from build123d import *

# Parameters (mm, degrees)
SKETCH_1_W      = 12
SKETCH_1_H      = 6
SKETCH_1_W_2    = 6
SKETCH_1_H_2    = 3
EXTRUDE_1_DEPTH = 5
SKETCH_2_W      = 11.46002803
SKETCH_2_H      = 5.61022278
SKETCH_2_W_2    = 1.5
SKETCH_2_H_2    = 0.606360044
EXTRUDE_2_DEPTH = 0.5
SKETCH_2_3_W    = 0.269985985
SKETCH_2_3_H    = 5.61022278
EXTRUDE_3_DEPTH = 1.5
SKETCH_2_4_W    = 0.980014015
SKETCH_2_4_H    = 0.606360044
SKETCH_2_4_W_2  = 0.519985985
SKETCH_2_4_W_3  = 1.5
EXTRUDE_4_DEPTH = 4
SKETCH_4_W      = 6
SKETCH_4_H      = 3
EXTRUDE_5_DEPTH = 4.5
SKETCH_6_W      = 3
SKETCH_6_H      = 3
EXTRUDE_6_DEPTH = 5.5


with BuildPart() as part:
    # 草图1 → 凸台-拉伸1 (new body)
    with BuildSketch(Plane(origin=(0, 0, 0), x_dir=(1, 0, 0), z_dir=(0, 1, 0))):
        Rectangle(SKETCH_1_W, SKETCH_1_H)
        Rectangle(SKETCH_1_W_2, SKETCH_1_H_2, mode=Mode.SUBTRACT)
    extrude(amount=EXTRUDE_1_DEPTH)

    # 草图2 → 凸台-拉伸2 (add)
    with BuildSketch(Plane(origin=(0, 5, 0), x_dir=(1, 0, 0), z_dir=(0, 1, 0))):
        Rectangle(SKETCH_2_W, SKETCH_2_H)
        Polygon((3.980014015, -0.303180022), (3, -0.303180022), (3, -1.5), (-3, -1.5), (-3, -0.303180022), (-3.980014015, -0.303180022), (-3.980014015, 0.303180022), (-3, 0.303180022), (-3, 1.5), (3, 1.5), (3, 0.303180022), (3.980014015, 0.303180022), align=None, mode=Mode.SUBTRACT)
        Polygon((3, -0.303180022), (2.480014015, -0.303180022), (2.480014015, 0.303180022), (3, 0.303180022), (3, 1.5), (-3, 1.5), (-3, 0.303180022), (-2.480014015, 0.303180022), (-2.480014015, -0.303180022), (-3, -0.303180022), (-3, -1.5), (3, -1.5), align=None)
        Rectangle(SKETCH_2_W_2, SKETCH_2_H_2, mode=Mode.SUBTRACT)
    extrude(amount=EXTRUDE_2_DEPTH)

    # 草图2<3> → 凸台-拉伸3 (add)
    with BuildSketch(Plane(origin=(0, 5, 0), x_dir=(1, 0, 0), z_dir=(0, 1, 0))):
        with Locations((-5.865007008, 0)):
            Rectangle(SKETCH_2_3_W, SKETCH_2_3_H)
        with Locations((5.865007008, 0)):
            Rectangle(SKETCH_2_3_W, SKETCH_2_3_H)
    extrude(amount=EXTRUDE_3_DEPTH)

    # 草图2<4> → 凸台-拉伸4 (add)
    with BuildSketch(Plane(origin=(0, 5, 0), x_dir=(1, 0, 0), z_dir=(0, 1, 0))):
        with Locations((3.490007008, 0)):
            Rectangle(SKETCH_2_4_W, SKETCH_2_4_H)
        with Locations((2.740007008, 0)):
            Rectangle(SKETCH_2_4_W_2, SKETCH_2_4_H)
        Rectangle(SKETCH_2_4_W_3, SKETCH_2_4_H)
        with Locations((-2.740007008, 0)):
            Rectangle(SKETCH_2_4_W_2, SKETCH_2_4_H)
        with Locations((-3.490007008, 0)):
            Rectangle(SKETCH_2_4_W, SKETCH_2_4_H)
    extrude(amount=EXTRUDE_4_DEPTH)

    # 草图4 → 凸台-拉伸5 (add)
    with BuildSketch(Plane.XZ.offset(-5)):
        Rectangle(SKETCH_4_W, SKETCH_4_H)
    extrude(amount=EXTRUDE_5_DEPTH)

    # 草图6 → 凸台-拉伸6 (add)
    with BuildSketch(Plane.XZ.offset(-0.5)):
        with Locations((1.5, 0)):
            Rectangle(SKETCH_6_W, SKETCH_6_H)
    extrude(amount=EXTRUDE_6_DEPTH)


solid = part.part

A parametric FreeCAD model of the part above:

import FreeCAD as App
import Part
import Sketcher

V = App.Vector
Q = App.Units.Quantity

doc = App.newDocument("Part")
body = doc.addObject("PartDesign::Body", "Body")

sketch1 = doc.addObject("Sketcher::SketchObject", "Sketch")
body.addObject(sketch1)
sketch1.AttachmentSupport = (doc.XZ_Plane, [""])
sketch1.MapMode = "FlatFace"
sketch1.addGeometry([
    Part.LineSegment(V(-6, -3, 0), V(-6, 3, 0)),
    Part.LineSegment(V(-6, 3, 0), V(6, 3, 0)),
    Part.LineSegment(V(6, 3, 0), V(6, -3, 0)),
    Part.LineSegment(V(6, -3, 0), V(-6, -3, 0)),
    Part.LineSegment(V(3, 1.5, 0), V(-3, 1.5, 0)),
    Part.LineSegment(V(-3, 1.5, 0), V(-3, -1.5, 0)),
    Part.LineSegment(V(-3, -1.5, 0), V(3, -1.5, 0)),
    Part.LineSegment(V(3, -1.5, 0), V(3, 1.5, 0)),
], False)
sketch1.addConstraint([
    Sketcher.Constraint("Coincident", 0, 2, 1, 1),
    Sketcher.Constraint("Coincident", 1, 2, 2, 1),
    Sketcher.Constraint("Coincident", 2, 2, 3, 1),
    Sketcher.Constraint("Coincident", 3, 2, 0, 1),
    Sketcher.Constraint("Coincident", 4, 2, 5, 1),
    Sketcher.Constraint("Coincident", 5, 2, 6, 1),
    Sketcher.Constraint("Coincident", 6, 2, 7, 1),
    Sketcher.Constraint("Coincident", 7, 2, 4, 1),
    Sketcher.Constraint("Vertical", 0),
    Sketcher.Constraint("Horizontal", 1),
    Sketcher.Constraint("Vertical", 2),
    Sketcher.Constraint("Horizontal", 3),
    Sketcher.Constraint("Horizontal", 4),
    Sketcher.Constraint("Vertical", 5),
    Sketcher.Constraint("Horizontal", 6),
    Sketcher.Constraint("Vertical", 7),
    Sketcher.Constraint("Symmetric", 0, 2, 2, 2, -1, 1),
    Sketcher.Constraint("Symmetric", 4, 2, 6, 2, -1, 1),
    Sketcher.Constraint("Equal", 6, 0),
    Sketcher.Constraint("DistanceX", 1, 1, 1, 2, Q("12 mm")),
    Sketcher.Constraint("DistanceX", 4, 2, 4, 1, Q("6 mm")),
    Sketcher.Constraint("DistanceY", 5, 2, 5, 1, Q("3 mm")),
])
pad1 = doc.addObject("PartDesign::Pad", "Pad")
body.addObject(pad1)
pad1.Profile = sketch1
pad1.Length = 5
pad1.Reversed = True

sketch2 = doc.addObject("Sketcher::SketchObject", "Sketch001")
body.addObject(sketch2)
sketch2.AttachmentSupport = (doc.XZ_Plane, [""])
sketch2.MapMode = "FlatFace"
sketch2.AttachmentOffset = App.Placement(V(0, 0, -5), App.Rotation())
sketch2.addGeometry([
    Part.LineSegment(V(-5.7, -2.8, 0), V(-5.7, 2.8, 0)),
    Part.LineSegment(V(-5.7, 2.8, 0), V(5.7, 2.8, 0)),
    Part.LineSegment(V(5.7, 2.8, 0), V(5.7, -2.8, 0)),
    Part.LineSegment(V(5.7, -2.8, 0), V(-5.7, -2.8, 0)),
    Part.LineSegment(V(-4, -0.3, 0), V(-2.5, -0.3, 0)),
    Part.LineSegment(V(-2.5, -0.3, 0), V(-2.5, 0.3, 0)),
    Part.LineSegment(V(-2.5, 0.3, 0), V(-4, 0.3, 0)),
    Part.LineSegment(V(-4, 0.3, 0), V(-4, -0.3, 0)),
    Part.LineSegment(V(0.8, 0.3, 0), V(-0.8, 0.3, 0)),
    Part.LineSegment(V(-0.8, 0.3, 0), V(-0.8, -0.3, 0)),
    Part.LineSegment(V(-0.8, -0.3, 0), V(0.8, -0.3, 0)),
    Part.LineSegment(V(0.8, -0.3, 0), V(0.8, 0.3, 0)),
    Part.LineSegment(V(4, -0.3, 0), V(4, 0.3, 0)),
    Part.LineSegment(V(4, 0.3, 0), V(2.5, 0.3, 0)),
    Part.LineSegment(V(2.5, 0.3, 0), V(2.5, -0.3, 0)),
    Part.LineSegment(V(2.5, -0.3, 0), V(4, -0.3, 0)),
], False)
sketch2.addConstraint([
    Sketcher.Constraint("Coincident", 0, 2, 1, 1),
    Sketcher.Constraint("Coincident", 1, 2, 2, 1),
    Sketcher.Constraint("Coincident", 2, 2, 3, 1),
    Sketcher.Constraint("Coincident", 3, 2, 0, 1),
    Sketcher.Constraint("Coincident", 4, 2, 5, 1),
    Sketcher.Constraint("Coincident", 5, 2, 6, 1),
    Sketcher.Constraint("Coincident", 6, 2, 7, 1),
    Sketcher.Constraint("Coincident", 7, 2, 4, 1),
    Sketcher.Constraint("Coincident", 8, 2, 9, 1),
    Sketcher.Constraint("Coincident", 9, 2, 10, 1),
    Sketcher.Constraint("Coincident", 10, 2, 11, 1),
    Sketcher.Constraint("Coincident", 11, 2, 8, 1),
    Sketcher.Constraint("Coincident", 12, 2, 13, 1),
    Sketcher.Constraint("Coincident", 13, 2, 14, 1),
    Sketcher.Constraint("Coincident", 14, 2, 15, 1),
    Sketcher.Constraint("Coincident", 15, 2, 12, 1),
    Sketcher.Constraint("Vertical", 0),
    Sketcher.Constraint("Horizontal", 1),
    Sketcher.Constraint("Vertical", 2),
    Sketcher.Constraint("Horizontal", 3),
    Sketcher.Constraint("Horizontal", 4),
    Sketcher.Constraint("Vertical", 5),
    Sketcher.Constraint("Horizontal", 6),
    Sketcher.Constraint("Vertical", 7),
    Sketcher.Constraint("Horizontal", 8),
    Sketcher.Constraint("Vertical", 9),
    Sketcher.Constraint("Horizontal", 10),
    Sketcher.Constraint("Vertical", 11),
    Sketcher.Constraint("Vertical", 12),
    Sketcher.Constraint("Horizontal", 13),
    Sketcher.Constraint("Vertical", 14),
    Sketcher.Constraint("Horizontal", 15),
    Sketcher.Constraint("Symmetric", 0, 2, 2, 2, -1, 1),
    Sketcher.Constraint("Symmetric", 8, 2, 10, 2, -1, 1),
    Sketcher.Constraint("Symmetric", 7, 2, 12, 2, -1, 1),
    Sketcher.Constraint("Symmetric", 5, 2, 14, 2, -1, 1),
    Sketcher.Constraint("Horizontal", 6, 2, 8, 2),
    Sketcher.Constraint("Horizontal", 7, 2, 9, 2),
    Sketcher.Constraint("Equal", 6, 8),
    Sketcher.Constraint("DistanceX", 4, 1, 4, 2, Q("1.5 mm")),
    Sketcher.Constraint("DistanceX", 3, 2, 4, 2, Q("3.25 mm")),
    Sketcher.Constraint("DistanceX", 1, 1, 1, 2, Q("11.460028 mm")),
    Sketcher.Constraint("DistanceY", 5, 1, 5, 2, Q("0.60636 mm")),
    Sketcher.Constraint("DistanceY", 0, 1, 0, 2, Q("5.610223 mm")),
])
pad2 = doc.addObject("PartDesign::Pad", "Pad001")
body.addObject(pad2)
pad2.Profile = sketch2
pad2.Length = 0.5
pad2.Reversed = True

sketch3 = doc.addObject("Sketcher::SketchObject", "Sketch002")
body.addObject(sketch3)
sketch3.AttachmentSupport = (doc.XZ_Plane, [""])
sketch3.MapMode = "FlatFace"
sketch3.AttachmentOffset = App.Placement(V(0, 0, -5), App.Rotation())
sketch3.addGeometry([
    Part.LineSegment(V(-6, -2.81, 0), V(-6, 2.81, 0)),
    Part.LineSegment(V(-6, 2.81, 0), V(-5.73, 2.81, 0)),
    Part.LineSegment(V(-5.73, 2.81, 0), V(-5.73, -2.81, 0)),
    Part.LineSegment(V(-5.73, -2.81, 0), V(-6, -2.81, 0)),
    Part.LineSegment(V(5.73, -2.81, 0), V(5.73, 2.81, 0)),
    Part.LineSegment(V(5.73, 2.81, 0), V(6, 2.81, 0)),
    Part.LineSegment(V(6, 2.81, 0), V(6, -2.81, 0)),
    Part.LineSegment(V(6, -2.81, 0), V(5.73, -2.81, 0)),
], False)
sketch3.addConstraint([
    Sketcher.Constraint("Coincident", 0, 2, 1, 1),
    Sketcher.Constraint("Coincident", 1, 2, 2, 1),
    Sketcher.Constraint("Coincident", 2, 2, 3, 1),
    Sketcher.Constraint("Coincident", 3, 2, 0, 1),
    Sketcher.Constraint("Coincident", 4, 2, 5, 1),
    Sketcher.Constraint("Coincident", 5, 2, 6, 1),
    Sketcher.Constraint("Coincident", 6, 2, 7, 1),
    Sketcher.Constraint("Coincident", 7, 2, 4, 1),
    Sketcher.Constraint("Vertical", 0),
    Sketcher.Constraint("Horizontal", 1),
    Sketcher.Constraint("Vertical", 2),
    Sketcher.Constraint("Horizontal", 3),
    Sketcher.Constraint("Vertical", 4),
    Sketcher.Constraint("Horizontal", 5),
    Sketcher.Constraint("Vertical", 6),
    Sketcher.Constraint("Horizontal", 7),
    Sketcher.Constraint("Symmetric", 2, 2, 4, 2, -1, 1),
    Sketcher.Constraint("Symmetric", 0, 2, 6, 2, -1, 1),
    Sketcher.Constraint("Horizontal", 1, 2, 4, 2),
    Sketcher.Constraint("DistanceX", 0, 2, -1, 1, Q("6 mm")),
    Sketcher.Constraint("DistanceX", 1, 1, 1, 2, Q("0.269986 mm")),
    Sketcher.Constraint("DistanceY", 0, 1, 0, 2, Q("5.610223 mm")),
])
pad3 = doc.addObject("PartDesign::Pad", "Pad002")
body.addObject(pad3)
pad3.Profile = sketch3
pad3.Length = 1.5
pad3.Reversed = True

sketch4 = doc.addObject("Sketcher::SketchObject", "Sketch003")
body.addObject(sketch4)
sketch4.AttachmentSupport = (doc.XZ_Plane, [""])
sketch4.MapMode = "FlatFace"
sketch4.AttachmentOffset = App.Placement(V(0, 0, -5), App.Rotation())
sketch4.addGeometry([
    Part.LineSegment(V(4, 0.3, 0), V(4, -0.3, 0)),
    Part.LineSegment(V(4, -0.3, 0), V(2.5, -0.3, 0)),
    Part.LineSegment(V(2.5, -0.3, 0), V(2.5, 0.3, 0)),
    Part.LineSegment(V(2.5, 0.3, 0), V(4, 0.3, 0)),
    Part.LineSegment(V(-0.8, -0.3, 0), V(-0.8, 0.3, 0)),
    Part.LineSegment(V(-0.8, 0.3, 0), V(0.8, 0.3, 0)),
    Part.LineSegment(V(0.8, 0.3, 0), V(0.8, -0.3, 0)),
    Part.LineSegment(V(0.8, -0.3, 0), V(-0.8, -0.3, 0)),
    Part.LineSegment(V(-2.5, 0.3, 0), V(-2.5, -0.3, 0)),
    Part.LineSegment(V(-2.5, -0.3, 0), V(-4, -0.3, 0)),
    Part.LineSegment(V(-4, -0.3, 0), V(-4, 0.3, 0)),
    Part.LineSegment(V(-4, 0.3, 0), V(-2.5, 0.3, 0)),
], False)
sketch4.addConstraint([
    Sketcher.Constraint("Coincident", 0, 2, 1, 1),
    Sketcher.Constraint("Coincident", 1, 2, 2, 1),
    Sketcher.Constraint("Coincident", 2, 2, 3, 1),
    Sketcher.Constraint("Coincident", 3, 2, 0, 1),
    Sketcher.Constraint("Coincident", 4, 2, 5, 1),
    Sketcher.Constraint("Coincident", 5, 2, 6, 1),
    Sketcher.Constraint("Coincident", 6, 2, 7, 1),
    Sketcher.Constraint("Coincident", 7, 2, 4, 1),
    Sketcher.Constraint("Coincident", 8, 2, 9, 1),
    Sketcher.Constraint("Coincident", 9, 2, 10, 1),
    Sketcher.Constraint("Coincident", 10, 2, 11, 1),
    Sketcher.Constraint("Coincident", 11, 2, 8, 1),
    Sketcher.Constraint("Vertical", 0),
    Sketcher.Constraint("Horizontal", 1),
    Sketcher.Constraint("Vertical", 2),
    Sketcher.Constraint("Horizontal", 3),
    Sketcher.Constraint("Vertical", 4),
    Sketcher.Constraint("Horizontal", 5),
    Sketcher.Constraint("Vertical", 6),
    Sketcher.Constraint("Horizontal", 7),
    Sketcher.Constraint("Vertical", 8),
    Sketcher.Constraint("Horizontal", 9),
    Sketcher.Constraint("Vertical", 10),
    Sketcher.Constraint("Horizontal", 11),
    Sketcher.Constraint("Symmetric", 4, 2, 6, 2, -1, 1),
    Sketcher.Constraint("Symmetric", 2, 2, 8, 2, -1, 1),
    Sketcher.Constraint("Symmetric", 0, 2, 10, 2, -1, 1),
    Sketcher.Constraint("Horizontal", 3, 2, 4, 2),
    Sketcher.Constraint("Horizontal", 1, 2, 6, 2),
    Sketcher.Constraint("Equal", 3, 5),
    Sketcher.Constraint("DistanceX", 1, 2, 1, 1, Q("1.5 mm")),
    Sketcher.Constraint("DistanceY", 0, 2, 0, 1, Q("0.60636 mm")),
    Sketcher.Constraint("DistanceX", 8, 2, 1, 2, Q("4.960028 mm")),
])
pad4 = doc.addObject("PartDesign::Pad", "Pad003")
body.addObject(pad4)
pad4.Profile = sketch4
pad4.Length = 4
pad4.Reversed = True

sketch5 = doc.addObject("Sketcher::SketchObject", "Sketch004")
body.addObject(sketch5)
sketch5.AttachmentSupport = (doc.XZ_Plane, [""])
sketch5.MapMode = "FlatFace"
sketch5.AttachmentOffset = App.Placement(V(0, 0, -5), App.Rotation())
sketch5.addGeometry([
    Part.LineSegment(V(-3, 1.5, 0), V(-3, -1.5, 0)),
    Part.LineSegment(V(-3, -1.5, 0), V(3, -1.5, 0)),
    Part.LineSegment(V(3, -1.5, 0), V(3, 1.5, 0)),
    Part.LineSegment(V(3, 1.5, 0), V(-3, 1.5, 0)),
], False)
sketch5.addConstraint([
    Sketcher.Constraint("Coincident", 0, 2, 1, 1),
    Sketcher.Constraint("Coincident", 1, 2, 2, 1),
    Sketcher.Constraint("Coincident", 2, 2, 3, 1),
    Sketcher.Constraint("Coincident", 3, 2, 0, 1),
    Sketcher.Constraint("Vertical", 0),
    Sketcher.Constraint("Horizontal", 1),
    Sketcher.Constraint("Vertical", 2),
    Sketcher.Constraint("Horizontal", 3),
    Sketcher.Constraint("Symmetric", 0, 2, 2, 2, -1, 1),
    Sketcher.Constraint("DistanceX", 1, 1, 1, 2, Q("6 mm")),
    Sketcher.Constraint("DistanceY", 0, 2, 0, 1, Q("3 mm")),
])
pad5 = doc.addObject("PartDesign::Pad", "Pad004")
body.addObject(pad5)
pad5.Profile = sketch5
pad5.Length = 4.5

sketch6 = doc.addObject("Sketcher::SketchObject", "Sketch005")
body.addObject(sketch6)
sketch6.AttachmentSupport = (doc.XZ_Plane, [""])
sketch6.MapMode = "FlatFace"
sketch6.AttachmentOffset = App.Placement(V(0, 0, -0.5), App.Rotation())
sketch6.addGeometry([
    Part.LineSegment(V(0, 1.5, 0), V(0, -1.5, 0)),
    Part.LineSegment(V(0, -1.5, 0), V(3, -1.5, 0)),
    Part.LineSegment(V(3, -1.5, 0), V(3, 1.5, 0)),
    Part.LineSegment(V(3, 1.5, 0), V(0, 1.5, 0)),
], False)
sketch6.addConstraint([
    Sketcher.Constraint("Coincident", 0, 2, 1, 1),
    Sketcher.Constraint("Coincident", 1, 2, 2, 1),
    Sketcher.Constraint("Coincident", 2, 2, 3, 1),
    Sketcher.Constraint("Coincident", 3, 2, 0, 1),
    Sketcher.Constraint("Vertical", 0),
    Sketcher.Constraint("Horizontal", 1),
    Sketcher.Constraint("Vertical", 2),
    Sketcher.Constraint("Horizontal", 3),
    Sketcher.Constraint("Symmetric", 0, 2, 3, 2, -1, 1),
    Sketcher.Constraint("Equal", 3, 0),
    Sketcher.Constraint("DistanceX", 1, 1, 1, 2, Q("3 mm")),
])
pad6 = doc.addObject("PartDesign::Pad", "Pad005")
body.addObject(pad6)
pad6.Profile = sketch6
pad6.Length = 5.5

doc.recompute()
